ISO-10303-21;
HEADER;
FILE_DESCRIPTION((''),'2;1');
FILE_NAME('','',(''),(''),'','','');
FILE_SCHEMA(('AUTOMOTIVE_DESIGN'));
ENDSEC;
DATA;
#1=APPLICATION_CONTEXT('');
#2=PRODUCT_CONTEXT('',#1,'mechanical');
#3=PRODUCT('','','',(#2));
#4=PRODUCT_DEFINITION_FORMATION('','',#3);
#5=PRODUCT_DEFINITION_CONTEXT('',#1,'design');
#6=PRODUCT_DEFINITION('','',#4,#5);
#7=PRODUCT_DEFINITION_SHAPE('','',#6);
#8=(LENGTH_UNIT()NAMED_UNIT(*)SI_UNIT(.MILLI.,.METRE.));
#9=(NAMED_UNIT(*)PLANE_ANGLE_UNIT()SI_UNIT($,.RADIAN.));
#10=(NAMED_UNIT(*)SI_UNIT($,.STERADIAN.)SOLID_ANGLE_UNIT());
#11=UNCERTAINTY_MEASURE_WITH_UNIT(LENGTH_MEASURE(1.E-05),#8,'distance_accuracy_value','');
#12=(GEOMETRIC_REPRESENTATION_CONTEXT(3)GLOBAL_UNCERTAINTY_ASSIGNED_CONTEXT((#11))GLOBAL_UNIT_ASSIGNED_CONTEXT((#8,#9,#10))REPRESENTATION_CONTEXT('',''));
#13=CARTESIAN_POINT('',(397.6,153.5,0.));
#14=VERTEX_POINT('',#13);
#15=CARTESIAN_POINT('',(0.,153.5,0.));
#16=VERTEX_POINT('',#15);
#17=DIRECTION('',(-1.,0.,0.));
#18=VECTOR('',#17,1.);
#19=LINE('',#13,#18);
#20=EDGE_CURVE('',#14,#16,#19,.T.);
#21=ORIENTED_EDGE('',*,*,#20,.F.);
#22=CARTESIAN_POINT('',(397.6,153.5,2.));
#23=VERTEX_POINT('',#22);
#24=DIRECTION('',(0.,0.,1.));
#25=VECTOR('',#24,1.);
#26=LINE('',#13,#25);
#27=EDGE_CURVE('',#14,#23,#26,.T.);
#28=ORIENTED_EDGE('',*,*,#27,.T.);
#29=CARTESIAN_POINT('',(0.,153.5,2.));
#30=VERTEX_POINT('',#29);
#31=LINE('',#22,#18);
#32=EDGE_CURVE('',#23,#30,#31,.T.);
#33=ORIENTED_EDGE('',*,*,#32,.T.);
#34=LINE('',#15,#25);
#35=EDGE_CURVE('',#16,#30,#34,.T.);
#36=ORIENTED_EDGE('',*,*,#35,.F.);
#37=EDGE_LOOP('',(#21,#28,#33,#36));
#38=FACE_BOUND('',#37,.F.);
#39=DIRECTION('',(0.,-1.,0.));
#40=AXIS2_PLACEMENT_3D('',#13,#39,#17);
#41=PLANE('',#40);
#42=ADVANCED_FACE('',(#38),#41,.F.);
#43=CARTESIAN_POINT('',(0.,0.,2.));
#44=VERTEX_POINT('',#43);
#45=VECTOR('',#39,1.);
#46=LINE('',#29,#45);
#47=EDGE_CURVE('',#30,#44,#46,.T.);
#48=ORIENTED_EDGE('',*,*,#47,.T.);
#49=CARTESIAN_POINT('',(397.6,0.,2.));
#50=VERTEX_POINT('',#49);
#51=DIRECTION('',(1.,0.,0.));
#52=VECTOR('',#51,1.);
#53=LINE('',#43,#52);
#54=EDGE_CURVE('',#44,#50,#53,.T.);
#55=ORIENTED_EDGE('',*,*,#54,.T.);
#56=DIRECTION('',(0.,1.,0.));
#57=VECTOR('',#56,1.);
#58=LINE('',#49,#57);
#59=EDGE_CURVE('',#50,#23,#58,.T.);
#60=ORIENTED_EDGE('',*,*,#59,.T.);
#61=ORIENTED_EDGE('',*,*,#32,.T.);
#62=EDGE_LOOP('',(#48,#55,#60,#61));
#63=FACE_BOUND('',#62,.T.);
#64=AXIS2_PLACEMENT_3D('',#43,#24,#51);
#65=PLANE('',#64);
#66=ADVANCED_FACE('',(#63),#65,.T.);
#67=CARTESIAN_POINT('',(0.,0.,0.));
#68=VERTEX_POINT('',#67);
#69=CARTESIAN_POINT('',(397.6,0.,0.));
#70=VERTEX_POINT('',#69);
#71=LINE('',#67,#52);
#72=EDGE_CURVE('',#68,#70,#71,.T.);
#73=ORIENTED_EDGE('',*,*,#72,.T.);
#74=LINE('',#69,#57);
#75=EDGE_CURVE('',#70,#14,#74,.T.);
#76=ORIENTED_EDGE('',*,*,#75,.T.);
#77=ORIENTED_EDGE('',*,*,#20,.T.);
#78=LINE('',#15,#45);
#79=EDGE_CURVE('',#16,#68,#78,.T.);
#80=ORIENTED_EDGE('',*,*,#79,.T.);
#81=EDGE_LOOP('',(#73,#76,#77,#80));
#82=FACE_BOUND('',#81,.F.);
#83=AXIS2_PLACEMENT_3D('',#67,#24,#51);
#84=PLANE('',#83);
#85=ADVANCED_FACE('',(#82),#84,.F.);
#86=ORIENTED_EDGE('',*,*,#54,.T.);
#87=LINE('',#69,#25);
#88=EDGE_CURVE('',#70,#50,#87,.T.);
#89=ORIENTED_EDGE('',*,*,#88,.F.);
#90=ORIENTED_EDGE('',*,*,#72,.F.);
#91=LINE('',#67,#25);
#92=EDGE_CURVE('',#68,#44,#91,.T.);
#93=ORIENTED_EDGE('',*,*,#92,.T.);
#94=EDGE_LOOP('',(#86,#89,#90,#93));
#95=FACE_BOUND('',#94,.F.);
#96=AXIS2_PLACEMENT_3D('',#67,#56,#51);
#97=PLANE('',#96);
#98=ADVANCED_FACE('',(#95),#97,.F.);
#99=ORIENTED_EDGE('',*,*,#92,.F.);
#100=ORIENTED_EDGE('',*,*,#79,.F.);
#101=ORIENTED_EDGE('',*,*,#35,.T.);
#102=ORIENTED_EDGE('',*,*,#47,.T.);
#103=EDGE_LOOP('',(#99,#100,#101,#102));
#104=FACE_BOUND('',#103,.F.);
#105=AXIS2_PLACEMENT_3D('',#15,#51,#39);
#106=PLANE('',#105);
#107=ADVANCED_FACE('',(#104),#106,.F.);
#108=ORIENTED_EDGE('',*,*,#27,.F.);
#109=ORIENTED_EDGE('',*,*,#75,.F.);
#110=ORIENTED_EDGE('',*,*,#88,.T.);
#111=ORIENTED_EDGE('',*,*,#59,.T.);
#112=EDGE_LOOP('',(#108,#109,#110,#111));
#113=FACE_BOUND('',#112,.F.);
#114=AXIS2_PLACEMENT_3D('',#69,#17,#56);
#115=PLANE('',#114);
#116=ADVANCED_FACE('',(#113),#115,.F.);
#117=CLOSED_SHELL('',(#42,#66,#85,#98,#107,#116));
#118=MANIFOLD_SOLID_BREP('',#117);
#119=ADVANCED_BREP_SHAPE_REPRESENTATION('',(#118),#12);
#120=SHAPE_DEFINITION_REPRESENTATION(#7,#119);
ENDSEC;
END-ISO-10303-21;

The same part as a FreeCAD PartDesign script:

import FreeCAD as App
import Part
import Sketcher

V = App.Vector
Q = App.Units.Quantity


def add_polygon(sketch, points):
    """Adds a closed chain of lines whose ends are joined by coincident constraints."""
    first, n = sketch.GeometryCount, len(points)
    for a, b in zip(points, points[1:] + points[:1]):
        sketch.addGeometry(Part.LineSegment(App.Vector(*a, 0), App.Vector(*b, 0)), False)
    for i in range(n):
        sketch.addConstraint(Sketcher.Constraint("Coincident", first + i, 2, first + (i + 1) % n, 1))

doc = App.newDocument("Part")
body = doc.addObject("PartDesign::Body", "Body")

# Sketch on XY plane
sketch1 = body.newObject("Sketcher::SketchObject", "Sketch")
sketch1.AttachmentSupport = (doc.getObject("XY_Plane"), [""])
sketch1.MapMode = "FlatFace"
add_polygon(sketch1, [(0, 153.5), (0, 0), (397.6, 0), (397.6, 153.5)])  # lines 0-3
sketch1.addConstraint(Sketcher.Constraint("Vertical", 0))
sketch1.addConstraint(Sketcher.Constraint("Horizontal", 1))
sketch1.addConstraint(Sketcher.Constraint("Vertical", 2))
sketch1.addConstraint(Sketcher.Constraint("Horizontal", 3))
sketch1.addConstraint(Sketcher.Constraint("Coincident", 0, 2, -1, 1))
sketch1.addConstraint(Sketcher.Constraint("DistanceX", 1, 1, 1, 2, Q("397.6 mm")))
sketch1.addConstraint(Sketcher.Constraint("DistanceY", 0, 2, 0, 1, Q("153.5 mm")))
pad1 = body.newObject("PartDesign::Pad", "Pad")
pad1.Profile = sketch1
pad1.Length = 2

doc.recompute()
